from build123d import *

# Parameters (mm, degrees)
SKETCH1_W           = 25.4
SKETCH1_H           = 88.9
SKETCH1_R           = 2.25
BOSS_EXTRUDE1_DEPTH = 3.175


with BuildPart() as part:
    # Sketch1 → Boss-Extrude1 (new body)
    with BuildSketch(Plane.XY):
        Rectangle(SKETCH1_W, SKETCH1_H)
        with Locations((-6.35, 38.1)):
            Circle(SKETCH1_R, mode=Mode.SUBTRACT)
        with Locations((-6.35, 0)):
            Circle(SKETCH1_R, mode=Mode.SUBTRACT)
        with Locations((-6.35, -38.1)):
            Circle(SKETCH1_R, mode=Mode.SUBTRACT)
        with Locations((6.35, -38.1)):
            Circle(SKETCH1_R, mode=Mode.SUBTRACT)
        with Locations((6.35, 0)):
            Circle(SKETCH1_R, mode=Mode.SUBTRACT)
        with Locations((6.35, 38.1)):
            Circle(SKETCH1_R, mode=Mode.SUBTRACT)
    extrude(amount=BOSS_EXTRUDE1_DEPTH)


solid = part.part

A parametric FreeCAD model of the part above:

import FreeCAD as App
import Part
import Sketcher
Q = App.Units.Quantity

doc = App.newDocument("Part")
body = doc.addObject("PartDesign::Body", "Body")

sketch1 = doc.addObject("Sketcher::SketchObject", "Sketch")
body.addObject(sketch1)
sketch1.AttachmentSupport = (doc.XY_Plane, [""])
sketch1.MapMode = "FlatFace"
sketch1.addGeometry([
    Part.LineSegment(App.Vector(-12.7, 44.45, 0), App.Vector(-12.7, -44.45, 0)),
    Part.LineSegment(App.Vector(-12.7, -44.45, 0), App.Vector(12.7, -44.45, 0)),
    Part.LineSegment(App.Vector(12.7, -44.45, 0), App.Vector(12.7, 44.45, 0)),
    Part.LineSegment(App.Vector(12.7, 44.45, 0), App.Vector(-12.7, 44.45, 0)),
    Part.Circle(App.Vector(-6.35, -38.1, 0), App.Vector(0, 0, 1), 2.25),
    Part.Circle(App.Vector(-6.35, 0, 0), App.Vector(0, 0, 1), 2.25),
    Part.Circle(App.Vector(6.35, -38.1, 0), App.Vector(0, 0, 1), 2.25),
    Part.Circle(App.Vector(6.35, 0, 0), App.Vector(0, 0, 1), 2.25),
    Part.Circle(App.Vector(-6.35, 38.1, 0), App.Vector(0, 0, 1), 2.25),
    Part.Circle(App.Vector(6.35, 38.1, 0), App.Vector(0, 0, 1), 2.25),
], False)
sketch1.addConstraint([
    Sketcher.Constraint("Coincident", 0, 2, 1, 1),
    Sketcher.Constraint("Coincident", 1, 2, 2, 1),
    Sketcher.Constraint("Coincident", 2, 2, 3, 1),
    Sketcher.Constraint("Coincident", 3, 2, 0, 1),
    Sketcher.Constraint("Vertical", 0),
    Sketcher.Constraint("Horizontal", 1),
    Sketcher.Constraint("Vertical", 2),
    Sketcher.Constraint("Horizontal", 3),
    Sketcher.Constraint("Equal", 4, 5),
    Sketcher.Constraint("Equal", 5, 6),
    Sketcher.Constraint("Equal", 6, 7),
    Sketcher.Constraint("Equal", 7, 8),
    Sketcher.Constraint("Equal", 8, 9),
    Sketcher.Constraint("Symmetric", 5, 3, 7, 3, -1, 1),
    Sketcher.Constraint("Symmetric", 6, 3, 8, 3, -1, 1),
    Sketcher.Constraint("Symmetric", 4, 3, 9, 3, -1, 1),
    Sketcher.Constraint("Symmetric", 0, 2, 2, 2, -1, 1),
    Sketcher.Constraint("Symmetric", 4, 3, 6, 3, -2),
    Sketcher.Constraint("PointOnObject", 5, 3, -1),
    Sketcher.Constraint("Vertical", 4, 3, 5, 3),
    Sketcher.Constraint("DistanceX", 1, 1, 1, 2, Q("1 in")),
    Sketcher.Constraint("DistanceY", 0, 2, 0, 1, Q("3.5 in")),
    Sketcher.Constraint("DistanceY", 4, 3, 8, 3, Q("3 in")),
    Sketcher.Constraint("DistanceX", 4, 3, 6, 3, Q("0.5 in")),
    Sketcher.Constraint("Diameter", 4, Q("4.5 mm")),
])
pad1 = doc.addObject("PartDesign::Pad", "Pad")
body.addObject(pad1)
pad1.Profile = sketch1
pad1.Length = Q("0.125 in")

doc.recompute()
